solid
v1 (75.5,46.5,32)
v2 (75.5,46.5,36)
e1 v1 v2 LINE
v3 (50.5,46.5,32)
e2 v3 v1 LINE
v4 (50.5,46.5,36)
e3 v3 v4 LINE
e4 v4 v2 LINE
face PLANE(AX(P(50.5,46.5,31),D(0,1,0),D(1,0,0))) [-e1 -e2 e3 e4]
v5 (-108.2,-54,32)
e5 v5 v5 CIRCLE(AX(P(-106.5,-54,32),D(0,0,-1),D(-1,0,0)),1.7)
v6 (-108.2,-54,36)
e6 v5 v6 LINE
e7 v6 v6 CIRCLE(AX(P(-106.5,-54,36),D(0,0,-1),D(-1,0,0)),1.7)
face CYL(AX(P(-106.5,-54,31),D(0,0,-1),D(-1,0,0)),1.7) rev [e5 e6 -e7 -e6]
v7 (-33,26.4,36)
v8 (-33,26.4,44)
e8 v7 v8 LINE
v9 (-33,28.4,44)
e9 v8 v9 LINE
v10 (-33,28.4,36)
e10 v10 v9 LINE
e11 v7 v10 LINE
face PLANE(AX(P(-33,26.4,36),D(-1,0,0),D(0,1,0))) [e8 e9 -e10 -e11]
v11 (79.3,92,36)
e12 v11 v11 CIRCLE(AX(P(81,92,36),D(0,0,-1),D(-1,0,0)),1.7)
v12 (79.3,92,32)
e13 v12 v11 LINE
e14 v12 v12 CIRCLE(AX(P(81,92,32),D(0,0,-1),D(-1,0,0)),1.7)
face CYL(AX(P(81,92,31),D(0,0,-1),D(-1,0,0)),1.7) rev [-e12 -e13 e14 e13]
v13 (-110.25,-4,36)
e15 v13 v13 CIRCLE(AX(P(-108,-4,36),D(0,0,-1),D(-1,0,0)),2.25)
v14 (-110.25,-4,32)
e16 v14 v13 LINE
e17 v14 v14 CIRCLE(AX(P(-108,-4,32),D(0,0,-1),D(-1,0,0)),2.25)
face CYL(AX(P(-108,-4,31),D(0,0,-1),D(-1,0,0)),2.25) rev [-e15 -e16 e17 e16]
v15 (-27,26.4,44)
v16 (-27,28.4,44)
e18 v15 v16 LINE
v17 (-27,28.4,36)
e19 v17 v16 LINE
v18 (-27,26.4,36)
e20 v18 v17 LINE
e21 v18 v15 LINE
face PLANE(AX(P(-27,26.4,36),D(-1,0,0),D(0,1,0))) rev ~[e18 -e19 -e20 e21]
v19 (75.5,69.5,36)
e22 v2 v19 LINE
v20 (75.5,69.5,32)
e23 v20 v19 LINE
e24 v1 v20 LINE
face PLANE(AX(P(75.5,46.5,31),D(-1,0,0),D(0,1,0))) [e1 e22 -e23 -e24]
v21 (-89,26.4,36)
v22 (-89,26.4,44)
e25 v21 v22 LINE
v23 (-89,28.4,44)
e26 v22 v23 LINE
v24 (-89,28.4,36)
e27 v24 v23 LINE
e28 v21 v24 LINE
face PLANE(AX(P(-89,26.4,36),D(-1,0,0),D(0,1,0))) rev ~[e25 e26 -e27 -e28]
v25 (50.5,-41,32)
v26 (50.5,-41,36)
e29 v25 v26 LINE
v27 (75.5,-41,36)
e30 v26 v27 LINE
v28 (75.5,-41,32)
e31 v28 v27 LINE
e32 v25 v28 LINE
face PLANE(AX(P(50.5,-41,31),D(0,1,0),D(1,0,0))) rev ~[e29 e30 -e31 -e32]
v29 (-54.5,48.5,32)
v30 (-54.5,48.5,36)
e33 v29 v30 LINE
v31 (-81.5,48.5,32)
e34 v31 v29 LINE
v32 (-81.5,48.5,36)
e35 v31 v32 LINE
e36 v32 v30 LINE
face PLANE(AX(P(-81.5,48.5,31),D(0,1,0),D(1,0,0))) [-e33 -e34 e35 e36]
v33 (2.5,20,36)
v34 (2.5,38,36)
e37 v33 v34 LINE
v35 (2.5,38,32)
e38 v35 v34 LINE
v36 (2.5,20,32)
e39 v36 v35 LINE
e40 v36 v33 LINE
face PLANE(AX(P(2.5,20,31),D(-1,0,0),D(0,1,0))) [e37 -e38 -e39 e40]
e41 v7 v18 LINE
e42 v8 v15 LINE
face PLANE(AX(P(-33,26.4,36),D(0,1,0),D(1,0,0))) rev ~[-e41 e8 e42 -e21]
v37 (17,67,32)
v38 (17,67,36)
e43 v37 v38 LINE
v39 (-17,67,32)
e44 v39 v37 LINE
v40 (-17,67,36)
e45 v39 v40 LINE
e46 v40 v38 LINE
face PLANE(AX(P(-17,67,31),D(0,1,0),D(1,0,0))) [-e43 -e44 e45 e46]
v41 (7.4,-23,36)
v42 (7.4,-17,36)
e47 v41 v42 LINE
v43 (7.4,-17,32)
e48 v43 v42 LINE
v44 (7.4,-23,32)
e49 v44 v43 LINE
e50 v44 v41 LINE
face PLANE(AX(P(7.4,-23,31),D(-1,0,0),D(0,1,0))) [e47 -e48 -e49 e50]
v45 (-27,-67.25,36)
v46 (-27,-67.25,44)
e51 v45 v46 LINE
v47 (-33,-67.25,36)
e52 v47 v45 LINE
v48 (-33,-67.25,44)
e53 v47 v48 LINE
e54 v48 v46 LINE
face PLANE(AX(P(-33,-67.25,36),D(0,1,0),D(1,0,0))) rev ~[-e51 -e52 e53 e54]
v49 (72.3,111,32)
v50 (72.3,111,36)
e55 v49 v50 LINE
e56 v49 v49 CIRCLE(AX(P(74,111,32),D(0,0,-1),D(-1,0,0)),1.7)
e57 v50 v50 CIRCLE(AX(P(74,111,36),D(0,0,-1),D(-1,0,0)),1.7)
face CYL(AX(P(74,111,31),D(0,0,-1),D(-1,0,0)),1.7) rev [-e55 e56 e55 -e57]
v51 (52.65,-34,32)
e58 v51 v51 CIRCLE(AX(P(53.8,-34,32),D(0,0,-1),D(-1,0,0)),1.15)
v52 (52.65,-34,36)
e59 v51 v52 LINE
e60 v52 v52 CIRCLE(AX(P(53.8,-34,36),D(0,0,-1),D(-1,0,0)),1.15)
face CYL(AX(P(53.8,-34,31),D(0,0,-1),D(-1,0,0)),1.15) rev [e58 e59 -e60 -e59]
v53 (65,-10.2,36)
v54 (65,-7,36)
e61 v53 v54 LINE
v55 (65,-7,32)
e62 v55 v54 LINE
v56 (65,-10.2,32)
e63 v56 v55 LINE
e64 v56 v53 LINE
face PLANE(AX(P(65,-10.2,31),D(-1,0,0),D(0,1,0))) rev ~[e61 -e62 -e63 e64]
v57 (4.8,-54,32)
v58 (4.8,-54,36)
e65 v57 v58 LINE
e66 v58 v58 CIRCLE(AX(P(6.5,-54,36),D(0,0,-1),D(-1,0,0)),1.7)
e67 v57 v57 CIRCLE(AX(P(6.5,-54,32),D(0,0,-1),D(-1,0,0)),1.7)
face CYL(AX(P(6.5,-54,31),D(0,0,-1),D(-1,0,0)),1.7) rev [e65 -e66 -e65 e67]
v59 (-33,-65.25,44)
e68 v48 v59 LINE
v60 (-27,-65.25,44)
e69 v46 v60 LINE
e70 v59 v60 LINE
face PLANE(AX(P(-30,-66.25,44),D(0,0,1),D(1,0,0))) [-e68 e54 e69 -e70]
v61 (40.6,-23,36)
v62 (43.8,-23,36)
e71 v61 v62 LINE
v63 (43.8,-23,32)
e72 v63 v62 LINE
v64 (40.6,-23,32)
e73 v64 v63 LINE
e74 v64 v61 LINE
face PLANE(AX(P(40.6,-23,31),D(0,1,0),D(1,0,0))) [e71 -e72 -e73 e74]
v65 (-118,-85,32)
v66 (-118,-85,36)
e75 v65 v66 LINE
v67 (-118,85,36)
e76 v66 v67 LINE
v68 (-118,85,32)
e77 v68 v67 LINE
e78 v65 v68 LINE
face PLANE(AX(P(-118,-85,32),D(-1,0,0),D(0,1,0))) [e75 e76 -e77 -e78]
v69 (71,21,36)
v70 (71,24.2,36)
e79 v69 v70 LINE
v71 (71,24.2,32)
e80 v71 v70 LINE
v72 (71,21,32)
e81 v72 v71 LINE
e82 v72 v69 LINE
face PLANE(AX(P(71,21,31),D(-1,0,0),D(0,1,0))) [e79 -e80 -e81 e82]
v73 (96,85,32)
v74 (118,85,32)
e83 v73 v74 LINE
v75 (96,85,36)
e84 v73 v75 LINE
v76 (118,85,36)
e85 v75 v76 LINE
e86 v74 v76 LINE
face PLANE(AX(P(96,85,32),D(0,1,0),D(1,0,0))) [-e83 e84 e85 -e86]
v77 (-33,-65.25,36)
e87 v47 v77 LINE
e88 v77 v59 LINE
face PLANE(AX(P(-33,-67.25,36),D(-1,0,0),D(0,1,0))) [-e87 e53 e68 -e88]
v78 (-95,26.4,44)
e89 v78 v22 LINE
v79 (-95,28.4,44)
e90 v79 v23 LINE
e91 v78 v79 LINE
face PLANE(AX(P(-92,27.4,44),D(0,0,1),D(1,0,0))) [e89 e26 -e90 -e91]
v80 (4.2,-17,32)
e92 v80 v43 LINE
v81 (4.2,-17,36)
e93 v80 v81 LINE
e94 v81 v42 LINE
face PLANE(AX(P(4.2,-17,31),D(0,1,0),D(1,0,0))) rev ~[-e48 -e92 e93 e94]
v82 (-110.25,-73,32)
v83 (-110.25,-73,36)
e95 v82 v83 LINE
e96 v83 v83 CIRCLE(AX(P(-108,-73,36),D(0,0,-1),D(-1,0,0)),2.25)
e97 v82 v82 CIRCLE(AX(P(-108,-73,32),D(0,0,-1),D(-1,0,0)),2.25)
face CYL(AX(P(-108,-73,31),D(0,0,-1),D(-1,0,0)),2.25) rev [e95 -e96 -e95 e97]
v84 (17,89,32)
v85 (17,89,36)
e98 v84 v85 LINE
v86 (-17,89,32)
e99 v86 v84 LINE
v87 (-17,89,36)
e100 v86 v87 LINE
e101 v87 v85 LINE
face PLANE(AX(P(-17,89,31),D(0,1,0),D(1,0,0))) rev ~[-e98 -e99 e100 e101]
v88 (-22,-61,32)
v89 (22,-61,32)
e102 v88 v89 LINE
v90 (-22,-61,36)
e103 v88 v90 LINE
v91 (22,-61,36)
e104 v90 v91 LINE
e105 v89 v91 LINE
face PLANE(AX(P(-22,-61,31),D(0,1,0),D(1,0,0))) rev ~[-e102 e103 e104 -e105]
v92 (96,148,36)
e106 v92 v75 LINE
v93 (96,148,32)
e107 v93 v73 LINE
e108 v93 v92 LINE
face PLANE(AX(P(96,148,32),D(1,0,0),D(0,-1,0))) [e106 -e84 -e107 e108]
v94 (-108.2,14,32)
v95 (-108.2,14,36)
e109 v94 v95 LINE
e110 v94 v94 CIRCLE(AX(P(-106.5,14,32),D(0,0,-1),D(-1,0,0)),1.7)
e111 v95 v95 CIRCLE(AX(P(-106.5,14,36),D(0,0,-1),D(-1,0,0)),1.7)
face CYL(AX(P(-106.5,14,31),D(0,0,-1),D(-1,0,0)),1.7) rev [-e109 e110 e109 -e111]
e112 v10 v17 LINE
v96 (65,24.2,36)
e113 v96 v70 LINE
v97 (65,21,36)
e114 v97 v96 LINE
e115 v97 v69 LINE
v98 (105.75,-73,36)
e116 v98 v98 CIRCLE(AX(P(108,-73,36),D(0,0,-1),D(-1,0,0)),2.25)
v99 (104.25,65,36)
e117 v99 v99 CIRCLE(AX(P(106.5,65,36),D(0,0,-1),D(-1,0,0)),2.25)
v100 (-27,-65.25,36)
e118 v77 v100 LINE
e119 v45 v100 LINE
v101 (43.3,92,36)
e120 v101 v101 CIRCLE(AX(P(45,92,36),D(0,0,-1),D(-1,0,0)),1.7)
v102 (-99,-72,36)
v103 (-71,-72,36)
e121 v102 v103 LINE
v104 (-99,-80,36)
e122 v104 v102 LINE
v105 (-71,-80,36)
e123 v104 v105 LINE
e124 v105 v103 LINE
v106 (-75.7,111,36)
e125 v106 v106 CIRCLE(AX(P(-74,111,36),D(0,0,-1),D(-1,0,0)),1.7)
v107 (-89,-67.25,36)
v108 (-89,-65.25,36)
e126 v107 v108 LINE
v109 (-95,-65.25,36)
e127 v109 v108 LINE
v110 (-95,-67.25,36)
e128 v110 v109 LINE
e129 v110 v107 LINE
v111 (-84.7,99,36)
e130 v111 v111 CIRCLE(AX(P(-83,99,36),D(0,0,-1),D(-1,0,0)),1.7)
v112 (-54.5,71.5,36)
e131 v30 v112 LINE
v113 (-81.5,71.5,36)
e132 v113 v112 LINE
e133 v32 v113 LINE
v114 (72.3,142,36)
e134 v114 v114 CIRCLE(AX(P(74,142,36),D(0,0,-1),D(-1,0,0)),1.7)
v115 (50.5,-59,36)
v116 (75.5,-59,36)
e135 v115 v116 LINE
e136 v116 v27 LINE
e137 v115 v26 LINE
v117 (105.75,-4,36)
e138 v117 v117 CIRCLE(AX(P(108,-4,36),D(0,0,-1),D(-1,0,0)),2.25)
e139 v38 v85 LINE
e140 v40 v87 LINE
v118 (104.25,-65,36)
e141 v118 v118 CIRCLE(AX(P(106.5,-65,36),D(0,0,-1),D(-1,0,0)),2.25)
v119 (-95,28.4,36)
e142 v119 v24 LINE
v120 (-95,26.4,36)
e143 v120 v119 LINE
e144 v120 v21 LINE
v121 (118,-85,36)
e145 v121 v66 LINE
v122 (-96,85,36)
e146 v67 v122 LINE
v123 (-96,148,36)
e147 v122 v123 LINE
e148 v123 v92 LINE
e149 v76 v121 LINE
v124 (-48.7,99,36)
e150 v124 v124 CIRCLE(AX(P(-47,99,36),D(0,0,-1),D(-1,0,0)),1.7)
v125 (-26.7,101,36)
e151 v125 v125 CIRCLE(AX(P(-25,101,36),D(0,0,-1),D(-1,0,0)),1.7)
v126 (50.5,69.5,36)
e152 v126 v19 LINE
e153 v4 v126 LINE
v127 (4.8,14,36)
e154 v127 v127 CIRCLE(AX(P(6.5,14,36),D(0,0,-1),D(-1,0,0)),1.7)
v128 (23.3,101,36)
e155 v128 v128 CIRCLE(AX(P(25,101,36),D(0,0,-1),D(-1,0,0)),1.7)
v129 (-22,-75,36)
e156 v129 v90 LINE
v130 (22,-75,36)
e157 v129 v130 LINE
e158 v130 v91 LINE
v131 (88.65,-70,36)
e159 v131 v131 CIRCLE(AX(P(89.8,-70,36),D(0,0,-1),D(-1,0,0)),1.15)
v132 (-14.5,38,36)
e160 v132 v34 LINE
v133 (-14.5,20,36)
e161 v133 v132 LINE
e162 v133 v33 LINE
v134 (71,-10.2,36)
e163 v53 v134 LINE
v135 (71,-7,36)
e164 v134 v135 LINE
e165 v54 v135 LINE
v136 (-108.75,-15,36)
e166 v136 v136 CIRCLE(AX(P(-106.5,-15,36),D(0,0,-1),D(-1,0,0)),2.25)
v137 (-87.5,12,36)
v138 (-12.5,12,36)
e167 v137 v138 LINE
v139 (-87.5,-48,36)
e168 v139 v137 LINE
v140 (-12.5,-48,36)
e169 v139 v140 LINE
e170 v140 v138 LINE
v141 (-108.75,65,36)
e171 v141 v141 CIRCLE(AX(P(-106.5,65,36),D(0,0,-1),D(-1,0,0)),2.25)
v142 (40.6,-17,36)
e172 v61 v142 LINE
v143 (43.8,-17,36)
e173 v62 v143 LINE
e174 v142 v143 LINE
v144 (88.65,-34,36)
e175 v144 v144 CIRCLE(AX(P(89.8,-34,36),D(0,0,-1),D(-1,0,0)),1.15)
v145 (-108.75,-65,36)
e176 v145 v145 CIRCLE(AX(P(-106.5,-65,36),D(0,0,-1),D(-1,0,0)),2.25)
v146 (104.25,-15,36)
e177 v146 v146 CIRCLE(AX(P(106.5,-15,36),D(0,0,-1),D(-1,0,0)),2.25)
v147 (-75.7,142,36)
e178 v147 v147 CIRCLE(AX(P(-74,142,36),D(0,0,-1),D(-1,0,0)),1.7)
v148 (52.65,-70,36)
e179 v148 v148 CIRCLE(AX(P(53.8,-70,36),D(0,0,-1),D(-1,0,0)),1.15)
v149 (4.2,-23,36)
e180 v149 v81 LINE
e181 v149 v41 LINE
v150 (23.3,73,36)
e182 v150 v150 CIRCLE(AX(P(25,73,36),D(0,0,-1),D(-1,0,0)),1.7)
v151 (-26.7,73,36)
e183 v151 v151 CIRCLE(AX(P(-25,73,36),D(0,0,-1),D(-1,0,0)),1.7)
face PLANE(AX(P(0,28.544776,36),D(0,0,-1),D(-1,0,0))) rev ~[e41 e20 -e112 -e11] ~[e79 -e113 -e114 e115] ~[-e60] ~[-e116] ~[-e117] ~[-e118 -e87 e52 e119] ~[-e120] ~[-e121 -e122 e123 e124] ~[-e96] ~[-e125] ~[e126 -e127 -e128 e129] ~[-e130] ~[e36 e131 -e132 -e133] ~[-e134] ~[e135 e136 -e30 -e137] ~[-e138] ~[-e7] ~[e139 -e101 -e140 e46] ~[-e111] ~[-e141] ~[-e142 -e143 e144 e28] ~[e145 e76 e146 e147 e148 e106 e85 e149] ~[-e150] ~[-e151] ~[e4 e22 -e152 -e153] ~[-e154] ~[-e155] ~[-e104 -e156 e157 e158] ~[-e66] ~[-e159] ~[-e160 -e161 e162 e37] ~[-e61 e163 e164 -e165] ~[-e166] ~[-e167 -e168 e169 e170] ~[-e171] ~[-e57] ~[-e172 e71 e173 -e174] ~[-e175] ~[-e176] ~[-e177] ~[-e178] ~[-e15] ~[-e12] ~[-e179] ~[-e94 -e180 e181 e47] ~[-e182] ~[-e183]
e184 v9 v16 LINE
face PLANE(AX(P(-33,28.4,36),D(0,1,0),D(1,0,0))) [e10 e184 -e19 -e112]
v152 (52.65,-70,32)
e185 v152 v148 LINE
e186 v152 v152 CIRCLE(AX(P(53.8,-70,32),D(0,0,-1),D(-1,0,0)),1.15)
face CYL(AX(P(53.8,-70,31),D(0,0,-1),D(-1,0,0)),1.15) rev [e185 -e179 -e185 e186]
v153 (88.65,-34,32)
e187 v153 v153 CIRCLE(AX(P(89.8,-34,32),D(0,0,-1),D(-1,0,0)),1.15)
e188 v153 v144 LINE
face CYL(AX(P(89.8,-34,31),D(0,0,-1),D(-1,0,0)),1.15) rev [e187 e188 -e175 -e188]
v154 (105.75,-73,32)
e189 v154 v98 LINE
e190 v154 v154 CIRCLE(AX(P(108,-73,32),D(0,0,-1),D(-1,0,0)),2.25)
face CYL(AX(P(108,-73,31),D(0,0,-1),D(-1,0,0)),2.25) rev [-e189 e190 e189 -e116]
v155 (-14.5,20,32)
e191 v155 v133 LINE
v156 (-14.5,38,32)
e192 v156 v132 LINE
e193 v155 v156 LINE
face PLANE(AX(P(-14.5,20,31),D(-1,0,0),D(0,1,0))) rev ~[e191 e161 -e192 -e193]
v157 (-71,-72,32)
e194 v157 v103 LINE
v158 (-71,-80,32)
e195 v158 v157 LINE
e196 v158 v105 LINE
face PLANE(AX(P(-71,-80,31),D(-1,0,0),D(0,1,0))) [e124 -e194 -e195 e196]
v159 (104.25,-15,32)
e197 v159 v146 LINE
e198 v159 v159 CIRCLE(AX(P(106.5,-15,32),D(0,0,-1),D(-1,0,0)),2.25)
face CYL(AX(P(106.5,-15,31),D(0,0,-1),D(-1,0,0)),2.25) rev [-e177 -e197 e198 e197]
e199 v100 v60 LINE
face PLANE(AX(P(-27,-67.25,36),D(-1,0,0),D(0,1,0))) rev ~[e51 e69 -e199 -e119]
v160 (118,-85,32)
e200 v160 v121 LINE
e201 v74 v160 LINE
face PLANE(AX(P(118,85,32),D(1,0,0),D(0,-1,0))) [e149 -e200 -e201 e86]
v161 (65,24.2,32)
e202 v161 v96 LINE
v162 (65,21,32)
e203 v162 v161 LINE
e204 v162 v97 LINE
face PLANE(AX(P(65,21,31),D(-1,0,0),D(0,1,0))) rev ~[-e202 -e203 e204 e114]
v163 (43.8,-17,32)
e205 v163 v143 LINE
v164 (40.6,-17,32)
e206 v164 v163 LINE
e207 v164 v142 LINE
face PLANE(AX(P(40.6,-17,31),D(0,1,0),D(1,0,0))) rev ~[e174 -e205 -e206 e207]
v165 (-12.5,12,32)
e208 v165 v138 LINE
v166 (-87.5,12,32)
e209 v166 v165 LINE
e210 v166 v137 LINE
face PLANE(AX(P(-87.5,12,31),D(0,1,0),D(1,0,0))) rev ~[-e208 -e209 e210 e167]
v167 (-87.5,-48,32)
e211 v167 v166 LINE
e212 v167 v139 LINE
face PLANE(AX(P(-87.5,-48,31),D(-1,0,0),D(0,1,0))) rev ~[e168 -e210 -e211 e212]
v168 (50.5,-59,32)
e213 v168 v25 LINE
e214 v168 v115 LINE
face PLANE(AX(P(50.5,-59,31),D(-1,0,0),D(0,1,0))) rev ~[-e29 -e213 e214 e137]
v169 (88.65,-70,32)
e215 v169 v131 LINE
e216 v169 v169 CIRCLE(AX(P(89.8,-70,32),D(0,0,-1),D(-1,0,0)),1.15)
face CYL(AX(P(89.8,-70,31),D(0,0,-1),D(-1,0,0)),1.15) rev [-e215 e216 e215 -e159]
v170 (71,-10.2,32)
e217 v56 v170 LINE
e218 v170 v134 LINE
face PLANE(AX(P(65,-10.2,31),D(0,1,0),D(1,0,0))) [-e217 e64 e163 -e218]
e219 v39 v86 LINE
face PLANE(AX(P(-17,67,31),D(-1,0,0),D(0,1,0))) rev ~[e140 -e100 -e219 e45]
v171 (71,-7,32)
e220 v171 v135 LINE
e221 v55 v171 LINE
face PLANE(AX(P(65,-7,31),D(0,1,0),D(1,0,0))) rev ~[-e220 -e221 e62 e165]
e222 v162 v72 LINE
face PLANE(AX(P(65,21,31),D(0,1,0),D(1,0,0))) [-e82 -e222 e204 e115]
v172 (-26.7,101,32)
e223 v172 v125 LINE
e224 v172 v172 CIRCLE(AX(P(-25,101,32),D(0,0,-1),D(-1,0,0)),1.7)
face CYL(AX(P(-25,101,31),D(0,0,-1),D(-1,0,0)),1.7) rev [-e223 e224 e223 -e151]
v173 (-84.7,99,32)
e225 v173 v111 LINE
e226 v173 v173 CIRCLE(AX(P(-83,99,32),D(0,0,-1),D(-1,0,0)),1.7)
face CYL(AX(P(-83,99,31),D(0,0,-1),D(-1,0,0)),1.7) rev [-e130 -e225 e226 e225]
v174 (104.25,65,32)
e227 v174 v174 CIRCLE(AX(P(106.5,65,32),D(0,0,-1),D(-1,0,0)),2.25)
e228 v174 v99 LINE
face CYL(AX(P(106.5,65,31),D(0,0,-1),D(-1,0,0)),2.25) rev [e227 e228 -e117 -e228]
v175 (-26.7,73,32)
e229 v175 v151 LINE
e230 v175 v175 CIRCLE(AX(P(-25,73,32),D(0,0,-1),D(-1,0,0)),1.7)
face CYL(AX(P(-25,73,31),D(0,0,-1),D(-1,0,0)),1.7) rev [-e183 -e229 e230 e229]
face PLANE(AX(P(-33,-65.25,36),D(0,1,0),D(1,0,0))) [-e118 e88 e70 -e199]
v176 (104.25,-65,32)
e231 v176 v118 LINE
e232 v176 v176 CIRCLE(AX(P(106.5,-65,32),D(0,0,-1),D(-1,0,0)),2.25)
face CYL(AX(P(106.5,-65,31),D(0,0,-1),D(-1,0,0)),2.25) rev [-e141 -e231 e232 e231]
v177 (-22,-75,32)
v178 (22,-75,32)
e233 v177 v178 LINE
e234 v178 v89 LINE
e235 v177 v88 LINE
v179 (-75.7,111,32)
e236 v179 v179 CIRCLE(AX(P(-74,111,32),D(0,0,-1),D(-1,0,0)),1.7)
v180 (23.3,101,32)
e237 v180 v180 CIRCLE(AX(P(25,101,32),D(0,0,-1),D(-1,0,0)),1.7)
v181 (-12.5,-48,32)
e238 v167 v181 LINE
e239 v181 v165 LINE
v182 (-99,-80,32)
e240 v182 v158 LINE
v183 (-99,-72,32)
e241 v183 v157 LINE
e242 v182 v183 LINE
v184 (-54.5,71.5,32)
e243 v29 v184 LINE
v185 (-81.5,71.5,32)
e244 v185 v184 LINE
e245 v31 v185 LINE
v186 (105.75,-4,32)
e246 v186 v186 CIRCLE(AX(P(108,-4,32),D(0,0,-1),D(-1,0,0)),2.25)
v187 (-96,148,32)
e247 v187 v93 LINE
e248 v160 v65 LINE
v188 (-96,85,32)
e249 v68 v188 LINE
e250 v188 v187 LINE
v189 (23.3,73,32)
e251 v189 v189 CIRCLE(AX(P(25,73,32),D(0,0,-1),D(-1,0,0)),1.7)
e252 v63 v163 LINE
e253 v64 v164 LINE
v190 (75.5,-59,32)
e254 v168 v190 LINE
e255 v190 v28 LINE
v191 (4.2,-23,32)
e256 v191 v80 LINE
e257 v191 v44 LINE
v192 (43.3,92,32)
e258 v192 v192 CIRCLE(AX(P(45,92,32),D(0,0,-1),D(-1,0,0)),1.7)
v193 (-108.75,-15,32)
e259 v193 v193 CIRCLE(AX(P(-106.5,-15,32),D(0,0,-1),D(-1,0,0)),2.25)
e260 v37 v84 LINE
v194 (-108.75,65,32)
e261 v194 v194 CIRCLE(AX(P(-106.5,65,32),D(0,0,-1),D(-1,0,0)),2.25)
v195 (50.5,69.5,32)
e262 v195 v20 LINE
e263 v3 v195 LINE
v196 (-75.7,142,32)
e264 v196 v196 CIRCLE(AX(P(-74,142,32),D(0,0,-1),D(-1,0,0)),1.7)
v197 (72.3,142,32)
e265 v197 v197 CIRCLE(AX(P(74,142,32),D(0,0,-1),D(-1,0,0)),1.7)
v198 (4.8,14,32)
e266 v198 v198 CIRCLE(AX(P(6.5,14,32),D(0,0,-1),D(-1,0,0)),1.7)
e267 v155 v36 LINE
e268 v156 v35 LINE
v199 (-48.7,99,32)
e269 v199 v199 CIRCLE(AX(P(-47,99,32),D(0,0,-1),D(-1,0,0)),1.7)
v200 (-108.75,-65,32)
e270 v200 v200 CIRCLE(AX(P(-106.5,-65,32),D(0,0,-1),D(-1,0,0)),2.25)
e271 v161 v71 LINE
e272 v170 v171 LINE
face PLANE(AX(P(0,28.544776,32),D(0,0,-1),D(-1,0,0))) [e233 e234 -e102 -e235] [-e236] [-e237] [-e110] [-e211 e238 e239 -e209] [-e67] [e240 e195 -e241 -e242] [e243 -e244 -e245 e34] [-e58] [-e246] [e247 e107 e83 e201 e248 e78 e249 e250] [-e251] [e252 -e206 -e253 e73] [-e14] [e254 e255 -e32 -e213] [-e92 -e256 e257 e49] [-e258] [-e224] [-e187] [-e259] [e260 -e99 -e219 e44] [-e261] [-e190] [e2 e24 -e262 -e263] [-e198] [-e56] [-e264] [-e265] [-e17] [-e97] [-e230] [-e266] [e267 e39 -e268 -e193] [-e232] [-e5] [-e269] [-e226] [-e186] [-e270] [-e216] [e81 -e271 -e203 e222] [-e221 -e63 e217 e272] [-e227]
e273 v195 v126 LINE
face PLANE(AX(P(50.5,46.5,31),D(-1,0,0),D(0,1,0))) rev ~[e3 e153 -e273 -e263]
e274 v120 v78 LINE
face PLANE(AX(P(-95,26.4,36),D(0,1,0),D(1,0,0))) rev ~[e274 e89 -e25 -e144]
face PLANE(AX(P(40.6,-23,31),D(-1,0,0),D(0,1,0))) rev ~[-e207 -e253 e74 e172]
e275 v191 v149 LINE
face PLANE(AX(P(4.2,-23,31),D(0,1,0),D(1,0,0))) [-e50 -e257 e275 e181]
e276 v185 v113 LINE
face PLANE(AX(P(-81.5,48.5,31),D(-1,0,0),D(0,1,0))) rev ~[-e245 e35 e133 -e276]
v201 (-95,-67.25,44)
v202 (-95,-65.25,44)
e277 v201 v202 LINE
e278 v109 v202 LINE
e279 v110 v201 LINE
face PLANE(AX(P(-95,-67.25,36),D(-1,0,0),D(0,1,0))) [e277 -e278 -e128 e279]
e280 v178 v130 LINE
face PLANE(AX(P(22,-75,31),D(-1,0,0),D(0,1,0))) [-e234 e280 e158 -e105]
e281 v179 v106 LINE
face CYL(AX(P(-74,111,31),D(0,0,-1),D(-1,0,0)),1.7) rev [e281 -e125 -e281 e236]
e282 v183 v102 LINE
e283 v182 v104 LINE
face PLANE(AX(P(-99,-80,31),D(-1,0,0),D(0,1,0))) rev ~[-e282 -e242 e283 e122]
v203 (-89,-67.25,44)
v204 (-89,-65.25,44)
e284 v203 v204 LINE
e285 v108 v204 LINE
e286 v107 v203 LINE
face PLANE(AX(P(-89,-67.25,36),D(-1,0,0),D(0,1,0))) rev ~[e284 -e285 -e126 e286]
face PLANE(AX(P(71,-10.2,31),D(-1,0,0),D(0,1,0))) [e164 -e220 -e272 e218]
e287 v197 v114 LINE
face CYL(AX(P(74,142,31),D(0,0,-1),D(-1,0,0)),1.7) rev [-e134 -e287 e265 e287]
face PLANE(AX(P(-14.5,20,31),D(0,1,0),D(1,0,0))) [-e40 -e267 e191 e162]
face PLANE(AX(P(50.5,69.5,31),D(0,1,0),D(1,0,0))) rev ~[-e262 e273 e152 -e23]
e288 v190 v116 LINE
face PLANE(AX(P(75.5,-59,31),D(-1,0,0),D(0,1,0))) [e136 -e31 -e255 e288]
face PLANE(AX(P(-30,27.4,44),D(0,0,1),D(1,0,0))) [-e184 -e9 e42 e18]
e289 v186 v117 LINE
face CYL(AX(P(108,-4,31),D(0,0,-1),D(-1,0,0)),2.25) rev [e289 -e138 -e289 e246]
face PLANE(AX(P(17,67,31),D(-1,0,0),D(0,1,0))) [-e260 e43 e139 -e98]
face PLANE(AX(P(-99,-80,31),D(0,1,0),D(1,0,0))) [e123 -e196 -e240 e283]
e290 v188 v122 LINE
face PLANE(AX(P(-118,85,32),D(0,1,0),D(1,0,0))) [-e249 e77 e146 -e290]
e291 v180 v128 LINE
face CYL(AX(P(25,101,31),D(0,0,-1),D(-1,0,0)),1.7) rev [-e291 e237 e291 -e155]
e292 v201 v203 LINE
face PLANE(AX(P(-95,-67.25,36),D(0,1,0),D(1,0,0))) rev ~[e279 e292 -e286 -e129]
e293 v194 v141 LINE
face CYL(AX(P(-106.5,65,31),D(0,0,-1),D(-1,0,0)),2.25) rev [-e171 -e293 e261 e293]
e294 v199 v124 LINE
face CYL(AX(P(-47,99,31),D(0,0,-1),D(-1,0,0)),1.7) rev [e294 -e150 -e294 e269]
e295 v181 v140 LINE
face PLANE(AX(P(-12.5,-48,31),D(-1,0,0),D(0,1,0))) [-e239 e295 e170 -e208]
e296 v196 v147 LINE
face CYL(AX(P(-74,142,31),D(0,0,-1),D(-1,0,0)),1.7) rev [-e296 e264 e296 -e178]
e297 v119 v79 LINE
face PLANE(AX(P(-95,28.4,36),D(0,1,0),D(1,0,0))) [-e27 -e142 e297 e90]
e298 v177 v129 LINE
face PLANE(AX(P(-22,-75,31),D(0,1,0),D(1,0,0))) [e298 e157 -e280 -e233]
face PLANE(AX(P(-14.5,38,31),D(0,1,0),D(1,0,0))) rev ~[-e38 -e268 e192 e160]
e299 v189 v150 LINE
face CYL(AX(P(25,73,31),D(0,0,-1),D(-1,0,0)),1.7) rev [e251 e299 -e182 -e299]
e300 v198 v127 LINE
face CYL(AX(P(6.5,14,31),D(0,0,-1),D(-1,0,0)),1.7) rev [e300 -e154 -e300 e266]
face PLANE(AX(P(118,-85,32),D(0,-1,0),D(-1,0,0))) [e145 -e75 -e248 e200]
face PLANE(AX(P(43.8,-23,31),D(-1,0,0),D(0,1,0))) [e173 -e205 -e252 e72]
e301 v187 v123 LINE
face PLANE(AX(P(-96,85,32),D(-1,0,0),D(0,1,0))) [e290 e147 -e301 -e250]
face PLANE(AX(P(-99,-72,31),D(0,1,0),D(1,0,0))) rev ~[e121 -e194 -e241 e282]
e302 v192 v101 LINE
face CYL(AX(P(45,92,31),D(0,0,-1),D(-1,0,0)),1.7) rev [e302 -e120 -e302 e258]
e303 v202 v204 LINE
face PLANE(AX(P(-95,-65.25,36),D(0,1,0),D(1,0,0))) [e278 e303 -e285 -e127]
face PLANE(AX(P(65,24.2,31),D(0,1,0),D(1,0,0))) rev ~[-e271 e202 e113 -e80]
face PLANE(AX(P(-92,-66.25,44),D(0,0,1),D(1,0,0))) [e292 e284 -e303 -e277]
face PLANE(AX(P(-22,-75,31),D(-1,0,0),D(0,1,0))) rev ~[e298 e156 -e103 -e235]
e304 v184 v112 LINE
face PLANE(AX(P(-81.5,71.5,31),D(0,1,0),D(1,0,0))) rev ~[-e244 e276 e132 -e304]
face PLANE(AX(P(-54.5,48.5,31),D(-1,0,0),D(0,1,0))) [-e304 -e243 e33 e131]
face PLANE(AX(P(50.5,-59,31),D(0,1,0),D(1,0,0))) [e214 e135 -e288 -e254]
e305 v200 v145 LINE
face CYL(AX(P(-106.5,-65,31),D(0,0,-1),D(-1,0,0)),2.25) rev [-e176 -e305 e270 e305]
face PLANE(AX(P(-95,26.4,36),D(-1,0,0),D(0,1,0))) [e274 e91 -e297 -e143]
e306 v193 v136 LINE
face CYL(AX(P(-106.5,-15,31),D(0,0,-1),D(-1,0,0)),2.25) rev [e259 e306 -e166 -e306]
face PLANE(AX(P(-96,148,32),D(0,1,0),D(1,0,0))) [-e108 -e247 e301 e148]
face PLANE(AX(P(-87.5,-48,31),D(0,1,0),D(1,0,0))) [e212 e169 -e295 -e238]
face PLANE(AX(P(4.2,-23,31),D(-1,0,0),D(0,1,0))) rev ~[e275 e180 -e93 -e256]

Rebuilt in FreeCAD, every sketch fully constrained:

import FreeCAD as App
import Part
import Sketcher

V = App.Vector


def add_polygon(sketch, points):
    """Adds a closed chain of lines whose ends are joined by coincident constraints."""
    first, n = sketch.GeometryCount, len(points)
    for a, b in zip(points, points[1:] + points[:1]):
        sketch.addGeometry(Part.LineSegment(App.Vector(*a, 0), App.Vector(*b, 0)), False)
    for i in range(n):
        sketch.addConstraint(Sketcher.Constraint("Coincident", first + i, 2, first + (i + 1) % n, 1))

doc = App.newDocument("Part")
body = doc.addObject("PartDesign::Body", "Body")

# Sketch on XY plane
sketch1 = body.newObject("Sketcher::SketchObject", "Sketch")
sketch1.AttachmentSupport = (doc.getObject("XY_Plane"), [""])
sketch1.MapMode = "FlatFace"
sketch1.AttachmentOffset = App.Placement(V(0, 0, 32), App.Rotation())
add_polygon(sketch1, [(118, -85), (118, 85), (96, 85), (96, 148), (-96, 148), (-96, 85), (-118, 85), (-118, -85)])  # lines 0-7
sketch1.addConstraint(Sketcher.Constraint("Vertical", 0))
sketch1.addConstraint(Sketcher.Constraint("Horizontal", 1))
sketch1.addConstraint(Sketcher.Constraint("Vertical", 2))
sketch1.addConstraint(Sketcher.Constraint("Horizontal", 3))
sketch1.addConstraint(Sketcher.Constraint("Vertical", 4))
sketch1.addConstraint(Sketcher.Constraint("Horizontal", 5))
sketch1.addConstraint(Sketcher.Constraint("Vertical", 6))
sketch1.addConstraint(Sketcher.Constraint("Horizontal", 7))
sketch1.addConstraint(Sketcher.Constraint("Symmetric", 0, 2, 6, 2, -1, 1))
sketch1.addConstraint(Sketcher.Constraint("Symmetric", 1, 2, 4, 2, -2))
sketch1.addConstraint(Sketcher.Constraint("DistanceX", 1, 2, 1, 1, 22.0))
sketch1.addConstraint(Sketcher.Constraint("DistanceX", 3, 2, 3, 1, 192.0))
sketch1.addConstraint(Sketcher.Constraint("DistanceY", 0, 1, 0, 2, 170.0))
sketch1.addConstraint(Sketcher.Constraint("DistanceY", 2, 1, 2, 2, 63.0))
pad1 = body.newObject("PartDesign::Pad", "Pad")
pad1.Profile = sketch1
pad1.Length = 4

# Sketch on XY plane
sketch2 = body.newObject("Sketcher::SketchObject", "Sketch001")
sketch2.AttachmentSupport = (doc.getObject("XY_Plane"), [""])
sketch2.MapMode = "FlatFace"
sketch2.AttachmentOffset = App.Placement(V(0, 0, 31), App.Rotation())
add_polygon(sketch2, [(-99, -72), (-99, -80), (-71, -80), (-71, -72)])  # lines 0-3
add_polygon(sketch2, [(-22, -61), (-22, -75), (22, -75), (22, -61)])  # lines 4-7
add_polygon(sketch2, [(50, -41), (50, -59), (76, -59), (76, -41)])  # lines 8-11
add_polygon(sketch2, [(-88, 12), (-88, -48), (-12, -48), (-12, 12)])  # lines 12-15
add_polygon(sketch2, [(-14, 38), (-14, 20), (2, 20), (2, 38)])  # lines 16-19
add_polygon(sketch2, [(50, 70), (50, 46), (76, 46), (76, 70)])  # lines 20-23
add_polygon(sketch2, [(-82, 72), (-82, 48), (-54, 48), (-54, 72)])  # lines 24-27
add_polygon(sketch2, [(-17, 89), (-17, 67), (17, 67), (17, 89)])  # lines 28-31
sketch2.addConstraint(Sketcher.Constraint("Vertical", 0))
sketch2.addConstraint(Sketcher.Constraint("Horizontal", 1))
sketch2.addConstraint(Sketcher.Constraint("Vertical", 2))
sketch2.addConstraint(Sketcher.Constraint("Horizontal", 3))
sketch2.addConstraint(Sketcher.Constraint("Vertical", 4))
sketch2.addConstraint(Sketcher.Constraint("Horizontal", 5))
sketch2.addConstraint(Sketcher.Constraint("Vertical", 6))
sketch2.addConstraint(Sketcher.Constraint("Horizontal", 7))
sketch2.addConstraint(Sketcher.Constraint("Vertical", 8))
sketch2.addConstraint(Sketcher.Constraint("Horizontal", 9))
sketch2.addConstraint(Sketcher.Constraint("Vertical", 10))
sketch2.addConstraint(Sketcher.Constraint("Horizontal", 11))
sketch2.addConstraint(Sketcher.Constraint("Vertical", 12))
sketch2.addConstraint(Sketcher.Constraint("Horizontal", 13))
sketch2.addConstraint(Sketcher.Constraint("Vertical", 14))
sketch2.addConstraint(Sketcher.Constraint("Horizontal", 15))
sketch2.addConstraint(Sketcher.Constraint("Vertical", 16))
sketch2.addConstraint(Sketcher.Constraint("Horizontal", 17))
sketch2.addConstraint(Sketcher.Constraint("Vertical", 18))
sketch2.addConstraint(Sketcher.Constraint("Horizontal", 19))
sketch2.addConstraint(Sketcher.Constraint("Vertical", 20))
sketch2.addConstraint(Sketcher.Constraint("Horizontal", 21))
sketch2.addConstraint(Sketcher.Constraint("Vertical", 22))
sketch2.addConstraint(Sketcher.Constraint("Horizontal", 23))
sketch2.addConstraint(Sketcher.Constraint("Vertical", 24))
sketch2.addConstraint(Sketcher.Constraint("Horizontal", 25))
sketch2.addConstraint(Sketcher.Constraint("Vertical", 26))
sketch2.addConstraint(Sketcher.Constraint("Horizontal", 27))
sketch2.addConstraint(Sketcher.Constraint("Vertical", 28))
sketch2.addConstraint(Sketcher.Constraint("Horizontal", 29))
sketch2.addConstraint(Sketcher.Constraint("Vertical", 30))
sketch2.addConstraint(Sketcher.Constraint("Horizontal", 31))
sketch2.addConstraint(Sketcher.Constraint("Vertical", 11, 2, 20, 2))
sketch2.addConstraint(Sketcher.Constraint("Vertical", 10, 2, 21, 2))
sketch2.addConstraint(Sketcher.Constraint("Equal", 10, 16))
sketch2.addConstraint(Sketcher.Constraint("Equal", 22, 24))
sketch2.addConstraint(Sketcher.Constraint("DistanceX", 1, 1, 1, 2, 28.0))
sketch2.addConstraint(Sketcher.Constraint("DistanceX", 5, 1, 5, 2, 44.0))
sketch2.addConstraint(Sketcher.Constraint("DistanceX", 9, 1, 9, 2, 25.0))
sketch2.addConstraint(Sketcher.Constraint("DistanceX", 13, 1, 13, 2, 75.0))
sketch2.addConstraint(Sketcher.Constraint("DistanceX", 17, 1, 17, 2, 17.0))
sketch2.addConstraint(Sketcher.Constraint("DistanceX", 25, 1, 25, 2, 27.0))
sketch2.addConstraint(Sketcher.Constraint("DistanceX", 29, 1, 29, 2, 34.0))
sketch2.addConstraint(Sketcher.Constraint("DistanceY", 0, 2, 0, 1, 8.0))
sketch2.addConstraint(Sketcher.Constraint("DistanceY", 4, 2, 4, 1, 14.0))
sketch2.addConstraint(Sketcher.Constraint("DistanceY", 8, 2, 8, 1, 18.0))
sketch2.addConstraint(Sketcher.Constraint("DistanceY", 12, 2, 12, 1, 60.0))
sketch2.addConstraint(Sketcher.Constraint("DistanceY", 20, 2, 20, 1, 23.0))
sketch2.addConstraint(Sketcher.Constraint("DistanceY", 28, 2, 28, 1, 22.0))
sketch2.addConstraint(Sketcher.Constraint("DistanceX", 0, 2, -1, 1, 99.0))
sketch2.addConstraint(Sketcher.Constraint("DistanceY", 0, 2, -1, 1, 80.0))
sketch2.addConstraint(Sketcher.Constraint("DistanceX", 4, 2, -1, 1, 22.0))
sketch2.addConstraint(Sketcher.Constraint("DistanceY", 4, 2, -1, 1, 75.0))
sketch2.addConstraint(Sketcher.Constraint("DistanceY", 8, 2, -1, 1, 59.0))
sketch2.addConstraint(Sketcher.Constraint("DistanceY", 12, 2, -1, 1, 48.0))
sketch2.addConstraint(Sketcher.Constraint("DistanceY", -1, 1, 16, 2, 20.0))
sketch2.addConstraint(Sketcher.Constraint("DistanceX", 28, 2, -1, 1, 17.0))
sketch2.addConstraint(Sketcher.Constraint("DistanceY", -1, 1, 28, 2, 67.0))
sketch2.addConstraint(Sketcher.Constraint("DistanceX", 14, 2, 11, 2, 63.0))
sketch2.addConstraint(Sketcher.Constraint("DistanceX", 16, 2, 14, 2, 2.0))
sketch2.addConstraint(Sketcher.Constraint("DistanceX", 15, 2, 24, 2, 6.0))
sketch2.addConstraint(Sketcher.Constraint("DistanceX", -1, 1, 8, 2, 50.5))
sketch2.addConstraint(Sketcher.Constraint("DistanceY", -1, 1, 20, 2, 46.5))
sketch2.addConstraint(Sketcher.Constraint("DistanceY", -1, 1, 24, 2, 48.5))
pocket1 = body.newObject("PartDesign::Pocket", "Pocket")
pocket1.Profile = sketch2
pocket1.Length = 6
pocket1.Reversed = True

# Sketch on XY plane
sketch3 = body.newObject("Sketcher::SketchObject", "Sketch002")
sketch3.AttachmentSupport = (doc.getObject("XY_Plane"), [""])
sketch3.MapMode = "FlatFace"
sketch3.AttachmentOffset = App.Placement(V(0, 0, 31), App.Rotation())
sketch3.addGeometry(Part.Circle(V(-106.5, -65, 0), V(0, 0, 1), 2.2), False)
sketch3.addGeometry(Part.Circle(V(-106.5, -15, 0), V(0, 0, 1), 2.2), False)
sketch3.addGeometry(Part.Circle(V(-106.5, 65, 0), V(0, 0, 1), 2.2), False)
sketch3.addGeometry(Part.Circle(V(106.5, -65, 0), V(0, 0, 1), 2.2), False)
sketch3.addGeometry(Part.Circle(V(106.5, -15, 0), V(0, 0, 1), 2.2), False)
sketch3.addGeometry(Part.Circle(V(106.5, 65, 0), V(0, 0, 1), 2.2), False)
sketch3.addConstraint(Sketcher.Constraint("Equal", 0, 1))
sketch3.addConstraint(Sketcher.Constraint("Equal", 1, 2))
sketch3.addConstraint(Sketcher.Constraint("Equal", 2, 3))
sketch3.addConstraint(Sketcher.Constraint("Equal", 3, 4))
sketch3.addConstraint(Sketcher.Constraint("Equal", 4, 5))
sketch3.addConstraint(Sketcher.Constraint("Symmetric", 2, 3, 3, 3, -1, 1))
sketch3.addConstraint(Sketcher.Constraint("Symmetric", 0, 3, 5, 3, -1, 1))
sketch3.addConstraint(Sketcher.Constraint("Symmetric", 0, 3, 3, 3, -2))
sketch3.addConstraint(Sketcher.Constraint("Symmetric", 1, 3, 4, 3, -2))
sketch3.addConstraint(Sketcher.Constraint("Vertical", 0, 3, 1, 3))
sketch3.addConstraint(Sketcher.Constraint("Diameter", 0, 4.5))
sketch3.addConstraint(Sketcher.Constraint("DistanceY", 0, 3, -1, 1, 65.0))
sketch3.addConstraint(Sketcher.Constraint("DistanceY", 1, 3, -1, 1, 15.0))
sketch3.addConstraint(Sketcher.Constraint("DistanceX", 0, 3, 3, 3, 213.0))
pocket2 = body.newObject("PartDesign::Pocket", "Pocket001")
pocket2.Profile = sketch3
pocket2.Length = 6
pocket2.Reversed = True

# Sketch on XY plane
sketch4 = body.newObject("Sketcher::SketchObject", "Sketch003")
sketch4.AttachmentSupport = (doc.getObject("XY_Plane"), [""])
sketch4.MapMode = "FlatFace"
sketch4.AttachmentOffset = App.Placement(V(0, 0, 31), App.Rotation())
sketch4.addGeometry(Part.Circle(V(-108, -73, 0), V(0, 0, 1), 2.2), False)
sketch4.addGeometry(Part.Circle(V(-108, -4, 0), V(0, 0, 1), 2.2), False)
sketch4.addGeometry(Part.Circle(V(108, -73, 0), V(0, 0, 1), 2.2), False)
sketch4.addGeometry(Part.Circle(V(108, -4, 0), V(0, 0, 1), 2.2), False)
sketch4.addConstraint(Sketcher.Constraint("Equal", 0, 1))
sketch4.addConstraint(Sketcher.Constraint("Equal", 1, 2))
sketch4.addConstraint(Sketcher.Constraint("Equal", 2, 3))
sketch4.addConstraint(Sketcher.Constraint("Symmetric", 0, 3, 2, 3, -2))
sketch4.addConstraint(Sketcher.Constraint("Symmetric", 1, 3, 3, 3, -2))
sketch4.addConstraint(Sketcher.Constraint("Vertical", 0, 3, 1, 3))
sketch4.addConstraint(Sketcher.Constraint("Diameter", 0, 4.5))
sketch4.addConstraint(Sketcher.Constraint("DistanceX", 0, 3, -1, 1, 108.0))
sketch4.addConstraint(Sketcher.Constraint("DistanceY", 0, 3, -1, 1, 73.0))
sketch4.addConstraint(Sketcher.Constraint("DistanceY", 1, 3, -1, 1, 4.0))
pocket3 = body.newObject("PartDesign::Pocket", "Pocket002")
pocket3.Profile = sketch4
pocket3.Length = 6
pocket3.Reversed = True

# Sketch on XY plane
sketch5 = body.newObject("Sketcher::SketchObject", "Sketch004")
sketch5.AttachmentSupport = (doc.getObject("XY_Plane"), [""])
sketch5.MapMode = "FlatFace"
sketch5.AttachmentOffset = App.Placement(V(0, 0, 31), App.Rotation())
sketch5.addGeometry(Part.Circle(V(-106.5, -54, 0), V(0, 0, 1), 1.7), False)
sketch5.addGeometry(Part.Circle(V(-106.5, 14, 0), V(0, 0, 1), 1.7), False)
sketch5.addGeometry(Part.Circle(V(6.5, -54, 0), V(0, 0, 1), 1.7), False)
sketch5.addGeometry(Part.Circle(V(6.5, 14, 0), V(0, 0, 1), 1.7), False)
sketch5.addConstraint(Sketcher.Constraint("Equal", 0, 1))
sketch5.addConstraint(Sketcher.Constraint("Equal", 1, 2))
sketch5.addConstraint(Sketcher.Constraint("Equal", 2, 3))
sketch5.addConstraint(Sketcher.Constraint("Horizontal", 0, 3, 2, 3))
sketch5.addConstraint(Sketcher.Constraint("Horizontal", 1, 3, 3, 3))
sketch5.addConstraint(Sketcher.Constraint("Vertical", 0, 3, 1, 3))
sketch5.addConstraint(Sketcher.Constraint("Vertical", 2, 3, 3, 3))
sketch5.addConstraint(Sketcher.Constraint("Diameter", 0, 3.4))
sketch5.addConstraint(Sketcher.Constraint("DistanceY", 0, 3, -1, 1, 54.0))
sketch5.addConstraint(Sketcher.Constraint("DistanceY", -1, 1, 1, 3, 14.0))
sketch5.addConstraint(Sketcher.Constraint("DistanceX", 0, 3, 2, 3, 113.0))
sketch5.addConstraint(Sketcher.Constraint("DistanceX", 0, 3, -1, 1, 106.5))
pocket4 = body.newObject("PartDesign::Pocket", "Pocket003")
pocket4.Profile = sketch5
pocket4.Length = 6
pocket4.Reversed = True

# Sketch on XY plane
sketch6 = body.newObject("Sketcher::SketchObject", "Sketch005")
sketch6.AttachmentSupport = (doc.getObject("XY_Plane"), [""])
sketch6.MapMode = "FlatFace"
sketch6.AttachmentOffset = App.Placement(V(0, 0, 31), App.Rotation())
sketch6.addGeometry(Part.Circle(V(53.8, -70, 0), V(0, 0, 1), 1.1), False)
sketch6.addGeometry(Part.Circle(V(53.8, -34, 0), V(0, 0, 1), 1.1), False)
sketch6.addGeometry(Part.Circle(V(89.8, -70, 0), V(0, 0, 1), 1.1), False)
sketch6.addGeometry(Part.Circle(V(89.8, -34, 0), V(0, 0, 1), 1.1), False)
sketch6.addConstraint(Sketcher.Constraint("Equal", 0, 1))
sketch6.addConstraint(Sketcher.Constraint("Equal", 1, 2))
sketch6.addConstraint(Sketcher.Constraint("Equal", 2, 3))
sketch6.addConstraint(Sketcher.Constraint("Horizontal", 0, 3, 2, 3))
sketch6.addConstraint(Sketcher.Constraint("Horizontal", 1, 3, 3, 3))
sketch6.addConstraint(Sketcher.Constraint("Vertical", 0, 3, 1, 3))
sketch6.addConstraint(Sketcher.Constraint("Vertical", 2, 3, 3, 3))
sketch6.addConstraint(Sketcher.Constraint("Diameter", 0, 2.3))
sketch6.addConstraint(Sketcher.Constraint("DistanceY", 0, 3, -1, 1, 70.0))
sketch6.addConstraint(Sketcher.Constraint("DistanceY", 1, 3, -1, 1, 34.0))
sketch6.addConstraint(Sketcher.Constraint("DistanceX", 0, 3, 2, 3, 36.0))
sketch6.addConstraint(Sketcher.Constraint("DistanceX", -1, 1, 0, 3, 53.8))
pocket5 = body.newObject("PartDesign::Pocket", "Pocket004")
pocket5.Profile = sketch6
pocket5.Length = 6
pocket5.Reversed = True

# Sketch on XY plane
sketch7 = body.newObject("Sketcher::SketchObject", "Sketch006")
sketch7.AttachmentSupport = (doc.getObject("XY_Plane"), [""])
sketch7.MapMode = "FlatFace"
sketch7.AttachmentOffset = App.Placement(V(0, 0, 31), App.Rotation())
sketch7.addGeometry(Part.Circle(V(-25, 73, 0), V(0, 0, 1), 1.7), False)
sketch7.addGeometry(Part.Circle(V(-25, 101, 0), V(0, 0, 1), 1.7), False)
sketch7.addGeometry(Part.Circle(V(25, 73, 0), V(0, 0, 1), 1.7), False)
sketch7.addGeometry(Part.Circle(V(25, 101, 0), V(0, 0, 1), 1.7), False)
sketch7.addConstraint(Sketcher.Constraint("Equal", 0, 1))
sketch7.addConstraint(Sketcher.Constraint("Equal", 1, 2))
sketch7.addConstraint(Sketcher.Constraint("Equal", 2, 3))
sketch7.addConstraint(Sketcher.Constraint("Symmetric", 0, 3, 2, 3, -2))
sketch7.addConstraint(Sketcher.Constraint("Symmetric", 1, 3, 3, 3, -2))
sketch7.addConstraint(Sketcher.Constraint("Vertical", 0, 3, 1, 3))
sketch7.addConstraint(Sketcher.Constraint("Diameter", 0, 3.4))
sketch7.addConstraint(Sketcher.Constraint("DistanceX", 0, 3, -1, 1, 25.0))
sketch7.addConstraint(Sketcher.Constraint("DistanceY", -1, 1, 0, 3, 73.0))
sketch7.addConstraint(Sketcher.Constraint("DistanceY", -1, 1, 1, 3, 101.0))
pocket6 = body.newObject("PartDesign::Pocket", "Pocket005")
pocket6.Profile = sketch7
pocket6.Length = 6
pocket6.Reversed = True

# Sketch on XY plane
sketch8 = body.newObject("Sketcher::SketchObject", "Sketch007")
sketch8.AttachmentSupport = (doc.getObject("XY_Plane"), [""])
sketch8.MapMode = "FlatFace"
sketch8.AttachmentOffset = App.Placement(V(0, 0, 31), App.Rotation())
sketch8.addGeometry(Part.Circle(V(-83, 99, 0), V(0, 0, 1), 1.7), False)
sketch8.addGeometry(Part.Circle(V(-47, 99, 0), V(0, 0, 1), 1.7), False)
sketch8.addGeometry(Part.Circle(V(45, 92, 0), V(0, 0, 1), 1.7), False)
sketch8.addGeometry(Part.Circle(V(81, 92, 0), V(0, 0, 1), 1.7), False)
sketch8.addConstraint(Sketcher.Constraint("Equal", 0, 1))
sketch8.addConstraint(Sketcher.Constraint("Equal", 1, 2))
sketch8.addConstraint(Sketcher.Constraint("Equal", 2, 3))
sketch8.addConstraint(Sketcher.Constraint("Horizontal", 0, 3, 1, 3))
sketch8.addConstraint(Sketcher.Constraint("Horizontal", 2, 3, 3, 3))
sketch8.addConstraint(Sketcher.Constraint("Diameter", 0, 3.4))
sketch8.addConstraint(Sketcher.Constraint("DistanceX", 0, 3, -1, 1, 83.0))
sketch8.addConstraint(Sketcher.Constraint("DistanceY", -1, 1, 0, 3, 99.0))
sketch8.addConstraint(Sketcher.Constraint("DistanceX", 1, 3, -1, 1, 47.0))
sketch8.addConstraint(Sketcher.Constraint("DistanceX", -1, 1, 2, 3, 45.0))
sketch8.addConstraint(Sketcher.Constraint("DistanceY", -1, 1, 2, 3, 92.0))
sketch8.addConstraint(Sketcher.Constraint("DistanceX", -1, 1, 3, 3, 81.0))
pocket7 = body.newObject("PartDesign::Pocket", "Pocket006")
pocket7.Profile = sketch8
pocket7.Length = 6
pocket7.Reversed = True

# Sketch on XY plane
sketch9 = body.newObject("Sketcher::SketchObject", "Sketch008")
sketch9.AttachmentSupport = (doc.getObject("XY_Plane"), [""])
sketch9.MapMode = "FlatFace"
sketch9.AttachmentOffset = App.Placement(V(0, 0, 31), App.Rotation())
sketch9.addGeometry(Part.Circle(V(-74, 111, 0), V(0, 0, 1), 1.7), False)
sketch9.addGeometry(Part.Circle(V(-74, 142, 0), V(0, 0, 1), 1.7), False)
sketch9.addGeometry(Part.Circle(V(74, 111, 0), V(0, 0, 1), 1.7), False)
sketch9.addGeometry(Part.Circle(V(74, 142, 0), V(0, 0, 1), 1.7), False)
sketch9.addConstraint(Sketcher.Constraint("Equal", 0, 1))
sketch9.addConstraint(Sketcher.Constraint("Equal", 1, 2))
sketch9.addConstraint(Sketcher.Constraint("Equal", 2, 3))
sketch9.addConstraint(Sketcher.Constraint("Symmetric", 0, 3, 2, 3, -2))
sketch9.addConstraint(Sketcher.Constraint("Symmetric", 1, 3, 3, 3, -2))
sketch9.addConstraint(Sketcher.Constraint("Vertical", 0, 3, 1, 3))
sketch9.addConstraint(Sketcher.Constraint("Diameter", 0, 3.4))
sketch9.addConstraint(Sketcher.Constraint("DistanceX", 0, 3, -1, 1, 74.0))
sketch9.addConstraint(Sketcher.Constraint("DistanceY", -1, 1, 0, 3, 111.0))
sketch9.addConstraint(Sketcher.Constraint("DistanceY", -1, 1, 1, 3, 142.0))
pocket8 = body.newObject("PartDesign::Pocket", "Pocket007")
pocket8.Profile = sketch9
pocket8.Length = 6
pocket8.Reversed = True

# Sketch on XY plane
sketch10 = body.newObject("Sketcher::SketchObject", "Sketch009")
sketch10.AttachmentSupport = (doc.getObject("XY_Plane"), [""])
sketch10.MapMode = "FlatFace"
sketch10.AttachmentOffset = App.Placement(V(0, 0, 31), App.Rotation())
add_polygon(sketch10, [(4.2, -17), (4.2, -23), (7.4, -23), (7.4, -17)])  # lines 0-3
add_polygon(sketch10, [(40.6, -17), (40.6, -23), (43.8, -23), (43.8, -17)])  # lines 4-7
add_polygon(sketch10, [(65, -7), (65, -10.2), (71, -10.2), (71, -7)])  # lines 8-11
add_polygon(sketch10, [(65, 24.2), (65, 21), (71, 21), (71, 24.2)])  # lines 12-15
sketch10.addConstraint(Sketcher.Constraint("Vertical", 0))
sketch10.addConstraint(Sketcher.Constraint("Horizontal", 1))
sketch10.addConstraint(Sketcher.Constraint("Vertical", 2))
sketch10.addConstraint(Sketcher.Constraint("Horizontal", 3))
sketch10.addConstraint(Sketcher.Constraint("Vertical", 4))
sketch10.addConstraint(Sketcher.Constraint("Horizontal", 5))
sketch10.addConstraint(Sketcher.Constraint("Vertical", 6))
sketch10.addConstraint(Sketcher.Constraint("Horizontal", 7))
sketch10.addConstraint(Sketcher.Constraint("Vertical", 8))
sketch10.addConstraint(Sketcher.Constraint("Horizontal", 9))
sketch10.addConstraint(Sketcher.Constraint("Vertical", 10))
sketch10.addConstraint(Sketcher.Constraint("Horizontal", 11))
sketch10.addConstraint(Sketcher.Constraint("Vertical", 12))
sketch10.addConstraint(Sketcher.Constraint("Horizontal", 13))
sketch10.addConstraint(Sketcher.Constraint("Vertical", 14))
sketch10.addConstraint(Sketcher.Constraint("Horizontal", 15))
sketch10.addConstraint(Sketcher.Constraint("Horizontal", 1, 2, 4, 2))
sketch10.addConstraint(Sketcher.Constraint("Horizontal", 3, 2, 6, 2))
sketch10.addConstraint(Sketcher.Constraint("Vertical", 11, 2, 12, 2))
sketch10.addConstraint(Sketcher.Constraint("Vertical", 10, 2, 13, 2))
sketch10.addConstraint(Sketcher.Constraint("Equal", 3, 5))
sketch10.addConstraint(Sketcher.Constraint("Equal", 15, 0))
sketch10.addConstraint(Sketcher.Constraint("Equal", 7, 8))
sketch10.addConstraint(Sketcher.Constraint("Equal", 10, 12))
sketch10.addConstraint(Sketcher.Constraint("DistanceX", 9, 1, 9, 2, 6.0))
sketch10.addConstraint(Sketcher.Constraint("DistanceX", 1, 1, 1, 2, 3.2))
sketch10.addConstraint(Sketcher.Constraint("DistanceY", 0, 2, -1, 1, 23.0))
sketch10.addConstraint(Sketcher.Constraint("DistanceX", -1, 1, 8, 2, 65.0))
sketch10.addConstraint(Sketcher.Constraint("DistanceY", 10, 2, -1, 1, 7.0))
sketch10.addConstraint(Sketcher.Constraint("DistanceY", -1, 1, 12, 2, 21.0))
sketch10.addConstraint(Sketcher.Constraint("DistanceX", -1, 1, 0, 2, 4.2))
sketch10.addConstraint(Sketcher.Constraint("DistanceX", -1, 1, 4, 2, 40.6))
pocket9 = body.newObject("PartDesign::Pocket", "Pocket008")
pocket9.Profile = sketch10
pocket9.Length = 6
pocket9.Reversed = True

# Sketch on XY plane
sketch11 = body.newObject("Sketcher::SketchObject", "Sketch010")
sketch11.AttachmentSupport = (doc.getObject("XY_Plane"), [""])
sketch11.MapMode = "FlatFace"
sketch11.AttachmentOffset = App.Placement(V(0, 0, 36), App.Rotation())
add_polygon(sketch11, [(-95, -65.2), (-95, -67.2), (-89, -67.2), (-89, -65.2)])  # lines 0-3
add_polygon(sketch11, [(-33, -65.2), (-33, -67.2), (-27, -67.2), (-27, -65.2)])  # lines 4-7
add_polygon(sketch11, [(-95, 28.4), (-95, 26.4), (-89, 26.4), (-89, 28.4)])  # lines 8-11
add_polygon(sketch11, [(-33, 28.4), (-33, 26.4), (-27, 26.4), (-27, 28.4)])  # lines 12-15
sketch11.addConstraint(Sketcher.Constraint("Vertical", 0))
sketch11.addConstraint(Sketcher.Constraint("Horizontal", 1))
sketch11.addConstraint(Sketcher.Constraint("Vertical", 2))
sketch11.addConstraint(Sketcher.Constraint("Horizontal", 3))
sketch11.addConstraint(Sketcher.Constraint("Vertical", 4))
sketch11.addConstraint(Sketcher.Constraint("Horizontal", 5))
sketch11.addConstraint(Sketcher.Constraint("Vertical", 6))
sketch11.addConstraint(Sketcher.Constraint("Horizontal", 7))
sketch11.addConstraint(Sketcher.Constraint("Vertical", 8))
sketch11.addConstraint(Sketcher.Constraint("Horizontal", 9))
sketch11.addConstraint(Sketcher.Constraint("Vertical", 10))
sketch11.addConstraint(Sketcher.Constraint("Horizontal", 11))
sketch11.addConstraint(Sketcher.Constraint("Vertical", 12))
sketch11.addConstraint(Sketcher.Constraint("Horizontal", 13))
sketch11.addConstraint(Sketcher.Constraint("Vertical", 14))
sketch11.addConstraint(Sketcher.Constraint("Horizontal", 15))
sketch11.addConstraint(Sketcher.Constraint("Horizontal", 1, 2, 4, 2))
sketch11.addConstraint(Sketcher.Constraint("Horizontal", 3, 2, 6, 2))
sketch11.addConstraint(Sketcher.Constraint("Horizontal", 9, 2, 12, 2))
sketch11.addConstraint(Sketcher.Constraint("Horizontal", 11, 2, 14, 2))
sketch11.addConstraint(Sketcher.Constraint("Vertical", 3, 2, 8, 2))
sketch11.addConstraint(Sketcher.Constraint("Vertical", 2, 2, 9, 2))
sketch11.addConstraint(Sketcher.Constraint("Vertical", 7, 2, 12, 2))
sketch11.addConstraint(Sketcher.Constraint("Vertical", 6, 2, 13, 2))
sketch11.addConstraint(Sketcher.Constraint("Equal", 3, 5))
sketch11.addConstraint(Sketcher.Constraint("Equal", 6, 8))
sketch11.addConstraint(Sketcher.Constraint("DistanceX", 1, 1, 1, 2, 6.0))
sketch11.addConstraint(Sketcher.Constraint("DistanceY", 0, 2, 0, 1, 2.0))
sketch11.addConstraint(Sketcher.Constraint("DistanceX", 0, 2, -1, 1, 95.0))
sketch11.addConstraint(Sketcher.Constraint("DistanceX", 4, 2, -1, 1, 33.0))
sketch11.addConstraint(Sketcher.Constraint("DistanceY", -1, 1, 8, 2, 26.4))
sketch11.addConstraint(Sketcher.Constraint("DistanceY", 0, 2, -1, 1, 67.25))
pad2 = body.newObject("PartDesign::Pad", "Pad001")
pad2.Profile = sketch11
pad2.Length = 8

doc.recompute()
